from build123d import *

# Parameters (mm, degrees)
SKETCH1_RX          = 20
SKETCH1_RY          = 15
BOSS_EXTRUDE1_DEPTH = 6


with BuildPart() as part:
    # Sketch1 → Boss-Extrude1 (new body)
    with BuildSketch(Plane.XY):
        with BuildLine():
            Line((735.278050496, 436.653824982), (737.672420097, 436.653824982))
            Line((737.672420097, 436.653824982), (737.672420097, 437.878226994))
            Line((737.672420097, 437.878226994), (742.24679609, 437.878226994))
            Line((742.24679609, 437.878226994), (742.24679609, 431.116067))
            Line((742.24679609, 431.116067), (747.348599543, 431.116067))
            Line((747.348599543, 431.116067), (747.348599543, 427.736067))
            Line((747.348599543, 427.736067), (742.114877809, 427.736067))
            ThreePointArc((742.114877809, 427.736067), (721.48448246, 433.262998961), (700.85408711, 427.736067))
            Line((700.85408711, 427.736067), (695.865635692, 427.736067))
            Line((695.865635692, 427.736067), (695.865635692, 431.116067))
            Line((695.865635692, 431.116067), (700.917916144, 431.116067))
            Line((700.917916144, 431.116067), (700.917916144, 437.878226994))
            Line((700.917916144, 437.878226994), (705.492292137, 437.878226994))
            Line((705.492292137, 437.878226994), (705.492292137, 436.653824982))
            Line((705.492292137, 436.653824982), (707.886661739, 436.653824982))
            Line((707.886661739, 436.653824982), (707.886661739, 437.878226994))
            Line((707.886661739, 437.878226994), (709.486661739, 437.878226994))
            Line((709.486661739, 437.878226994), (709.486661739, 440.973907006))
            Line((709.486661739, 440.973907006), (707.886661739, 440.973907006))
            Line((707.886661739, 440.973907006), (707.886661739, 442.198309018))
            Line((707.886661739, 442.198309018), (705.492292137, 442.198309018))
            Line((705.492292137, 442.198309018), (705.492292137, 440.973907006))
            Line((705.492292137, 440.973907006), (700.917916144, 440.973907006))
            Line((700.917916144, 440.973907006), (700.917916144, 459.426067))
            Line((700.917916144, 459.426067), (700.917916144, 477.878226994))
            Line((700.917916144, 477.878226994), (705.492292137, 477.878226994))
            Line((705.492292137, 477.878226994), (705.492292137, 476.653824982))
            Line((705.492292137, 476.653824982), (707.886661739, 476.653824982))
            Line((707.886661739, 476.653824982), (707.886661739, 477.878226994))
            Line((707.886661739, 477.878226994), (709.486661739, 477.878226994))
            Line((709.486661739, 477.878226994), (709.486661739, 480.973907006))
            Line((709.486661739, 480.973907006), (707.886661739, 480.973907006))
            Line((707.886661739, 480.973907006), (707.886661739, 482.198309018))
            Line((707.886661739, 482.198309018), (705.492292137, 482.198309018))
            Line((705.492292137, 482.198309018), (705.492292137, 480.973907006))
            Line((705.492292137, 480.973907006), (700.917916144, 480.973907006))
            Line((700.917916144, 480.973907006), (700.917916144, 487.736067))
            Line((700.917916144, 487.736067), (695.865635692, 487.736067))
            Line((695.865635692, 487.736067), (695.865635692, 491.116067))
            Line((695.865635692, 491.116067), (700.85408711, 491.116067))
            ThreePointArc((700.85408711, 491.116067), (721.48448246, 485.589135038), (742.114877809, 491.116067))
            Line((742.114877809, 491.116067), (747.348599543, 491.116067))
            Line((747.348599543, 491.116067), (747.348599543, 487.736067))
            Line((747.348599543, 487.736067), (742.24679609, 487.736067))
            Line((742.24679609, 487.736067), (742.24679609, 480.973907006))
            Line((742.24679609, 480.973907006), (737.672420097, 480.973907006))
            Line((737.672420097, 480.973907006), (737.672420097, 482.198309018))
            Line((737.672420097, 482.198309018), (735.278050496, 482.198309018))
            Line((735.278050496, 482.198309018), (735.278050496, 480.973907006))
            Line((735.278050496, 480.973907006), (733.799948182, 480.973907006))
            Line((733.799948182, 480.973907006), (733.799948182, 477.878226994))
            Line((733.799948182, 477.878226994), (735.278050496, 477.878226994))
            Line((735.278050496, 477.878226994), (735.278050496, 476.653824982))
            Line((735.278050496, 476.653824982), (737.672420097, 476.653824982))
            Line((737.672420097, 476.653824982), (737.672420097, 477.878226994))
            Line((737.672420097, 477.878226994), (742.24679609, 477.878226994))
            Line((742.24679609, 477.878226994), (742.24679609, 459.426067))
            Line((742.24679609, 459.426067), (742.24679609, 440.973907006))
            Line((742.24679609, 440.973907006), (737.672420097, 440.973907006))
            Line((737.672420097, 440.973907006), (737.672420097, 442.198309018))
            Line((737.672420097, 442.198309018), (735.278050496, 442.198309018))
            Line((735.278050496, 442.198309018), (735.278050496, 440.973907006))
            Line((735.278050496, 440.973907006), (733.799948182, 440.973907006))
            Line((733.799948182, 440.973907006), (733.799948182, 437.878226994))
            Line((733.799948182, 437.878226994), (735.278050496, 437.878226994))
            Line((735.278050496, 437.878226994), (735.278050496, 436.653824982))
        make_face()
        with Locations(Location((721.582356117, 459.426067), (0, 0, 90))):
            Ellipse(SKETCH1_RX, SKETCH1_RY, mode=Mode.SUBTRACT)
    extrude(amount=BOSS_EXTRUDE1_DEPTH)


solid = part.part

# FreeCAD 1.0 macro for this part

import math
import FreeCAD as App
import Part
import Sketcher

V = App.Vector
Q = App.Units.Quantity

doc = App.newDocument("Part")
body = doc.addObject("PartDesign::Body", "Body")

# Sketch on XY plane
sketch1 = body.newObject("Sketcher::SketchObject", "Sketch")
sketch1.AttachmentSupport = (doc.getObject("XY_Plane"), [""])
sketch1.MapMode = "FlatFace"
sketch1.addGeometry([
    Part.LineSegment(V(737.67242, 436.653825, 0), V(735.27805, 436.653825, 0)),  # 0
    Part.LineSegment(V(735.27805, 436.653825, 0), V(735.27805, 437.878227, 0)),  # 1
    Part.LineSegment(V(735.27805, 437.878227, 0), V(733.799948, 437.878227, 0)),  # 2
    Part.LineSegment(V(733.799948, 437.878227, 0), V(733.799948, 440.973907, 0)),  # 3
    Part.LineSegment(V(733.799948, 440.973907, 0), V(735.27805, 440.973907, 0)),  # 4
    Part.LineSegment(V(735.27805, 440.973907, 0), V(735.27805, 442.198309, 0)),  # 5
    Part.LineSegment(V(735.27805, 442.198309, 0), V(737.67242, 442.198309, 0)),  # 6
    Part.LineSegment(V(737.67242, 442.198309, 0), V(737.67242, 440.973907, 0)),  # 7
    Part.LineSegment(V(737.67242, 440.973907, 0), V(742.246796, 440.973907, 0)),  # 8
    Part.LineSegment(V(742.246796, 440.973907, 0), V(742.246796, 477.878227, 0)),  # 9
    Part.LineSegment(V(742.246796, 477.878227, 0), V(737.67242, 477.878227, 0)),  # 10
    Part.LineSegment(V(737.67242, 477.878227, 0), V(737.67242, 476.653825, 0)),  # 11
    Part.LineSegment(V(737.67242, 476.653825, 0), V(735.27805, 476.653825, 0)),  # 12
    Part.LineSegment(V(735.27805, 476.653825, 0), V(735.27805, 477.878227, 0)),  # 13
    Part.LineSegment(V(735.27805, 477.878227, 0), V(733.799948, 477.878227, 0)),  # 14
    Part.LineSegment(V(733.799948, 477.878227, 0), V(733.799948, 480.973907, 0)),  # 15
    Part.LineSegment(V(733.799948, 480.973907, 0), V(735.27805, 480.973907, 0)),  # 16
    Part.LineSegment(V(735.27805, 480.973907, 0), V(735.27805, 482.198309, 0)),  # 17
    Part.LineSegment(V(735.27805, 482.198309, 0), V(737.67242, 482.198309, 0)),  # 18
    Part.LineSegment(V(737.67242, 482.198309, 0), V(737.67242, 480.973907, 0)),  # 19
    Part.LineSegment(V(737.67242, 480.973907, 0), V(742.246796, 480.973907, 0)),  # 20
    Part.LineSegment(V(742.246796, 480.973907, 0), V(742.246796, 487.736067, 0)),  # 21
    Part.LineSegment(V(742.246796, 487.736067, 0), V(747.3486, 487.736067, 0)),  # 22
    Part.LineSegment(V(747.3486, 487.736067, 0), V(747.3486, 491.116067, 0)),  # 23
    Part.LineSegment(V(747.3486, 491.116067, 0), V(742.114878, 491.116067, 0)),  # 24
    Part.ArcOfCircle(Part.Circle(V(721.484482, 526.85617, 0), V(0, 0, 1), 41.267035), math.radians(-119.994995), math.radians(-60.005005)),  # 25
    Part.LineSegment(V(700.854087, 491.116067, 0), V(695.865636, 491.116067, 0)),  # 26
    Part.LineSegment(V(695.865636, 491.116067, 0), V(695.865636, 487.736067, 0)),  # 27
    Part.LineSegment(V(695.865636, 487.736067, 0), V(700.917916, 487.736067, 0)),  # 28
    Part.LineSegment(V(700.917916, 487.736067, 0), V(700.917916, 480.973907, 0)),  # 29
    Part.LineSegment(V(700.917916, 480.973907, 0), V(705.492292, 480.973907, 0)),  # 30
    Part.LineSegment(V(705.492292, 480.973907, 0), V(705.492292, 482.198309, 0)),  # 31
    Part.LineSegment(V(705.492292, 482.198309, 0), V(707.886662, 482.198309, 0)),  # 32
    Part.LineSegment(V(707.886662, 482.198309, 0), V(707.886662, 480.973907, 0)),  # 33
    Part.LineSegment(V(707.886662, 480.973907, 0), V(709.486662, 480.973907, 0)),  # 34
    Part.LineSegment(V(709.486662, 480.973907, 0), V(709.486662, 477.878227, 0)),  # 35
    Part.LineSegment(V(709.486662, 477.878227, 0), V(707.886662, 477.878227, 0)),  # 36
    Part.LineSegment(V(707.886662, 477.878227, 0), V(707.886662, 476.653825, 0)),  # 37
    Part.LineSegment(V(707.886662, 476.653825, 0), V(705.492292, 476.653825, 0)),  # 38
    Part.LineSegment(V(705.492292, 476.653825, 0), V(705.492292, 477.878227, 0)),  # 39
    Part.LineSegment(V(705.492292, 477.878227, 0), V(700.917916, 477.878227, 0)),  # 40
    Part.LineSegment(V(700.917916, 477.878227, 0), V(700.917916, 440.973907, 0)),  # 41
    Part.LineSegment(V(700.917916, 440.973907, 0), V(705.492292, 440.973907, 0)),  # 42
    Part.LineSegment(V(705.492292, 440.973907, 0), V(705.492292, 442.198309, 0)),  # 43
    Part.LineSegment(V(705.492292, 442.198309, 0), V(707.886662, 442.198309, 0)),  # 44
    Part.LineSegment(V(707.886662, 442.198309, 0), V(707.886662, 440.973907, 0)),  # 45
    Part.LineSegment(V(707.886662, 440.973907, 0), V(709.486662, 440.973907, 0)),  # 46
    Part.LineSegment(V(709.486662, 440.973907, 0), V(709.486662, 437.878227, 0)),  # 47
    Part.LineSegment(V(709.486662, 437.878227, 0), V(707.886662, 437.878227, 0)),  # 48
    Part.LineSegment(V(707.886662, 437.878227, 0), V(707.886662, 436.653825, 0)),  # 49
    Part.LineSegment(V(707.886662, 436.653825, 0), V(705.492292, 436.653825, 0)),  # 50
    Part.LineSegment(V(705.492292, 436.653825, 0), V(705.492292, 437.878227, 0)),  # 51
    Part.LineSegment(V(705.492292, 437.878227, 0), V(700.917916, 437.878227, 0)),  # 52
    Part.LineSegment(V(700.917916, 437.878227, 0), V(700.917916, 431.116067, 0)),  # 53
    Part.LineSegment(V(700.917916, 431.116067, 0), V(695.865636, 431.116067, 0)),  # 54
    Part.LineSegment(V(695.865636, 431.116067, 0), V(695.865636, 427.736067, 0)),  # 55
    Part.LineSegment(V(695.865636, 427.736067, 0), V(700.854087, 427.736067, 0)),  # 56
    Part.ArcOfCircle(Part.Circle(V(721.484482, 391.995964, 0), V(0, 0, 1), 41.267035), math.radians(60.005005), math.radians(119.994995)),  # 57
    Part.LineSegment(V(742.114878, 427.736067, 0), V(747.3486, 427.736067, 0)),  # 58
    Part.LineSegment(V(747.3486, 427.736067, 0), V(747.3486, 431.116067, 0)),  # 59
    Part.LineSegment(V(747.3486, 431.116067, 0), V(742.246796, 431.116067, 0)),  # 60
    Part.LineSegment(V(742.246796, 431.116067, 0), V(742.246796, 437.878227, 0)),  # 61
    Part.LineSegment(V(742.246796, 437.878227, 0), V(737.67242, 437.878227, 0)),  # 62
    Part.LineSegment(V(737.67242, 437.878227, 0), V(737.67242, 436.653825, 0)),  # 63
    Part.Ellipse(V(721.582356, 479.426067, 0), V(706.582356, 459.426067, 0), V(721.582356, 459.426067, 0)),  # 64
], False)
sketch1.addConstraint([
    Sketcher.Constraint("Block", 64),
    Sketcher.Constraint("Coincident", 0, 2, 1, 1),
    Sketcher.Constraint("Coincident", 1, 2, 2, 1),
    Sketcher.Constraint("Coincident", 2, 2, 3, 1),
    Sketcher.Constraint("Coincident", 3, 2, 4, 1),
    Sketcher.Constraint("Coincident", 4, 2, 5, 1),
    Sketcher.Constraint("Coincident", 5, 2, 6, 1),
    Sketcher.Constraint("Coincident", 6, 2, 7, 1),
    Sketcher.Constraint("Coincident", 7, 2, 8, 1),
    Sketcher.Constraint("Coincident", 8, 2, 9, 1),
    Sketcher.Constraint("Coincident", 9, 2, 10, 1),
    Sketcher.Constraint("Coincident", 10, 2, 11, 1),
    Sketcher.Constraint("Coincident", 11, 2, 12, 1),
    Sketcher.Constraint("Coincident", 12, 2, 13, 1),
    Sketcher.Constraint("Coincident", 13, 2, 14, 1),
    Sketcher.Constraint("Coincident", 14, 2, 15, 1),
    Sketcher.Constraint("Coincident", 15, 2, 16, 1),
    Sketcher.Constraint("Coincident", 16, 2, 17, 1),
    Sketcher.Constraint("Coincident", 17, 2, 18, 1),
    Sketcher.Constraint("Coincident", 18, 2, 19, 1),
    Sketcher.Constraint("Coincident", 19, 2, 20, 1),
    Sketcher.Constraint("Coincident", 20, 2, 21, 1),
    Sketcher.Constraint("Coincident", 21, 2, 22, 1),
    Sketcher.Constraint("Coincident", 22, 2, 23, 1),
    Sketcher.Constraint("Coincident", 23, 2, 24, 1),
    Sketcher.Constraint("Coincident", 24, 2, 25, 2),
    Sketcher.Constraint("Coincident", 25, 1, 26, 1),
    Sketcher.Constraint("Coincident", 26, 2, 27, 1),
    Sketcher.Constraint("Coincident", 27, 2, 28, 1),
    Sketcher.Constraint("Coincident", 28, 2, 29, 1),
    Sketcher.Constraint("Coincident", 29, 2, 30, 1),
    Sketcher.Constraint("Coincident", 30, 2, 31, 1),
    Sketcher.Constraint("Coincident", 31, 2, 32, 1),
    Sketcher.Constraint("Coincident", 32, 2, 33, 1),
    Sketcher.Constraint("Coincident", 33, 2, 34, 1),
    Sketcher.Constraint("Coincident", 34, 2, 35, 1),
    Sketcher.Constraint("Coincident", 35, 2, 36, 1),
    Sketcher.Constraint("Coincident", 36, 2, 37, 1),
    Sketcher.Constraint("Coincident", 37, 2, 38, 1),
    Sketcher.Constraint("Coincident", 38, 2, 39, 1),
    Sketcher.Constraint("Coincident", 39, 2, 40, 1),
    Sketcher.Constraint("Coincident", 40, 2, 41, 1),
    Sketcher.Constraint("Coincident", 41, 2, 42, 1),
    Sketcher.Constraint("Coincident", 42, 2, 43, 1),
    Sketcher.Constraint("Coincident", 43, 2, 44, 1),
    Sketcher.Constraint("Coincident", 44, 2, 45, 1),
    Sketcher.Constraint("Coincident", 45, 2, 46, 1),
    Sketcher.Constraint("Coincident", 46, 2, 47, 1),
    Sketcher.Constraint("Coincident", 47, 2, 48, 1),
    Sketcher.Constraint("Coincident", 48, 2, 49, 1),
    Sketcher.Constraint("Coincident", 49, 2, 50, 1),
    Sketcher.Constraint("Coincident", 50, 2, 51, 1),
    Sketcher.Constraint("Coincident", 51, 2, 52, 1),
    Sketcher.Constraint("Coincident", 52, 2, 53, 1),
    Sketcher.Constraint("Coincident", 53, 2, 54, 1),
    Sketcher.Constraint("Coincident", 54, 2, 55, 1),
    Sketcher.Constraint("Coincident", 55, 2, 56, 1),
    Sketcher.Constraint("Coincident", 56, 2, 57, 2),
    Sketcher.Constraint("Coincident", 57, 1, 58, 1),
    Sketcher.Constraint("Coincident", 58, 2, 59, 1),
    Sketcher.Constraint("Coincident", 59, 2, 60, 1),
    Sketcher.Constraint("Coincident", 60, 2, 61, 1),
    Sketcher.Constraint("Coincident", 61, 2, 62, 1),
    Sketcher.Constraint("Coincident", 62, 2, 63, 1),
    Sketcher.Constraint("Coincident", 63, 2, 0, 1),
    Sketcher.Constraint("Horizontal", 0),
    Sketcher.Constraint("Vertical", 1),
    Sketcher.Constraint("Horizontal", 2),
    Sketcher.Constraint("Vertical", 3),
    Sketcher.Constraint("Horizontal", 4),
    Sketcher.Constraint("Vertical", 5),
    Sketcher.Constraint("Horizontal", 6),
    Sketcher.Constraint("Vertical", 7),
    Sketcher.Constraint("Horizontal", 8),
    Sketcher.Constraint("Vertical", 9),
    Sketcher.Constraint("Horizontal", 10),
    Sketcher.Constraint("Vertical", 11),
    Sketcher.Constraint("Horizontal", 12),
    Sketcher.Constraint("Vertical", 13),
    Sketcher.Constraint("Horizontal", 14),
    Sketcher.Constraint("Vertical", 15),
    Sketcher.Constraint("Horizontal", 16),
    Sketcher.Constraint("Vertical", 17),
    Sketcher.Constraint("Horizontal", 18),
    Sketcher.Constraint("Vertical", 19),
    Sketcher.Constraint("Horizontal", 20),
    Sketcher.Constraint("Vertical", 21),
    Sketcher.Constraint("Horizontal", 22),
    Sketcher.Constraint("Vertical", 23),
    Sketcher.Constraint("Horizontal", 24),
    Sketcher.Constraint("Horizontal", 26),
    Sketcher.Constraint("Vertical", 27),
    Sketcher.Constraint("Horizontal", 28),
    Sketcher.Constraint("Vertical", 29),
    Sketcher.Constraint("Horizontal", 30),
    Sketcher.Constraint("Vertical", 31),
    Sketcher.Constraint("Horizontal", 32),
    Sketcher.Constraint("Vertical", 33),
    Sketcher.Constraint("Horizontal", 34),
    Sketcher.Constraint("Vertical", 35),
    Sketcher.Constraint("Horizontal", 36),
    Sketcher.Constraint("Vertical", 37),
    Sketcher.Constraint("Horizontal", 38),
    Sketcher.Constraint("Vertical", 39),
    Sketcher.Constraint("Horizontal", 40),
    Sketcher.Constraint("Vertical", 41),
    Sketcher.Constraint("Horizontal", 42),
    Sketcher.Constraint("Vertical", 43),
    Sketcher.Constraint("Horizontal", 44),
    Sketcher.Constraint("Vertical", 45),
    Sketcher.Constraint("Horizontal", 46),
    Sketcher.Constraint("Vertical", 47),
    Sketcher.Constraint("Horizontal", 48),
    Sketcher.Constraint("Vertical", 49),
    Sketcher.Constraint("Horizontal", 50),
    Sketcher.Constraint("Vertical", 51),
    Sketcher.Constraint("Horizontal", 52),
    Sketcher.Constraint("Vertical", 53),
    Sketcher.Constraint("Horizontal", 54),
    Sketcher.Constraint("Vertical", 55),
    Sketcher.Constraint("Horizontal", 56),
    Sketcher.Constraint("Horizontal", 58),
    Sketcher.Constraint("Vertical", 59),
    Sketcher.Constraint("Horizontal", 60),
    Sketcher.Constraint("Vertical", 61),
    Sketcher.Constraint("Horizontal", 62),
    Sketcher.Constraint("Vertical", 63),
    Sketcher.Constraint("Equal", 25, 57),
    Sketcher.Constraint("Horizontal", 4, 2, 7, 2),
    Sketcher.Constraint("Horizontal", 10, 2, 13, 2),
    Sketcher.Constraint("Horizontal", 16, 2, 19, 2),
    Sketcher.Constraint("Horizontal", 24, 2, 25, 1),
    Sketcher.Constraint("Horizontal", 22, 2, 27, 2),
    Sketcher.Constraint("Horizontal", 20, 2, 29, 2),
    Sketcher.Constraint("Horizontal", 18, 2, 31, 2),
    Sketcher.Constraint("Horizontal", 30, 2, 33, 2),
    Sketcher.Constraint("Horizontal", 14, 2, 35, 2),
    Sketcher.Constraint("Horizontal", 12, 2, 37, 2),
    Sketcher.Constraint("Horizontal", 36, 2, 39, 2),
    Sketcher.Constraint("Horizontal", 8, 2, 41, 2),
    Sketcher.Constraint("Horizontal", 6, 2, 43, 2),
    Sketcher.Constraint("Horizontal", 42, 2, 45, 2),
    Sketcher.Constraint("Horizontal", 2, 2, 47, 2),
    Sketcher.Constraint("Horizontal", 0, 2, 49, 2),
    Sketcher.Constraint("Horizontal", 48, 2, 51, 2),
    Sketcher.Constraint("Horizontal", 56, 2, 57, 1),
    Sketcher.Constraint("Horizontal", 54, 2, 59, 2),
    Sketcher.Constraint("Horizontal", 52, 2, 61, 2),
    Sketcher.Constraint("Vertical", 25, 3, 57, 3),
    Sketcher.Constraint("Vertical", 1, 2, 4, 2),
    Sketcher.Constraint("Vertical", 7, 2, 10, 2),
    Sketcher.Constraint("Vertical", 5, 2, 12, 2),
    Sketcher.Constraint("Vertical", 3, 2, 14, 2),
    Sketcher.Constraint("Vertical", 13, 2, 16, 2),
    Sketcher.Constraint("Vertical", 11, 2, 18, 2),
    Sketcher.Constraint("Vertical", 9, 2, 20, 2),
    Sketcher.Constraint("Vertical", 33, 2, 36, 2),
    Sketcher.Constraint("Vertical", 31, 2, 38, 2),
    Sketcher.Constraint("Vertical", 29, 2, 40, 2),
    Sketcher.Constraint("Vertical", 39, 2, 42, 2),
    Sketcher.Constraint("Vertical", 37, 2, 44, 2),
    Sketcher.Constraint("Vertical", 35, 2, 46, 2),
    Sketcher.Constraint("Vertical", 45, 2, 48, 2),
    Sketcher.Constraint("Vertical", 43, 2, 50, 2),
    Sketcher.Constraint("Vertical", 41, 2, 52, 2),
    Sketcher.Constraint("Vertical", 27, 2, 54, 2),
    Sketcher.Constraint("Vertical", 25, 1, 56, 2),
    Sketcher.Constraint("Vertical", 23, 2, 58, 2),
    Sketcher.Constraint("Vertical", 21, 2, 60, 2),
    Sketcher.Constraint("Vertical", 19, 2, 62, 2),
    Sketcher.Constraint("Equal", 20, 30),
    Sketcher.Constraint("Equal", 18, 32),
    Sketcher.Constraint("Equal", 1, 5),
    Sketcher.Constraint("Equal", 7, 11),
    Sketcher.Constraint("Equal", 3, 15),
    Sketcher.Constraint("Equal", 13, 17),
    Sketcher.Constraint("Equal", 29, 53),
    Sketcher.Constraint("Equal", 27, 55),
    Sketcher.Constraint("DistanceX", 34, 1, 34, 2, Q("1.6 mm")),
    Sketcher.Constraint("DistanceY", 23, 1, 23, 2, Q("3.38 mm")),
    Sketcher.Constraint("Radius", 25, Q("41.267035 mm")),
    Sketcher.Constraint("DistanceX", 0, 2, 0, 1, Q("2.39437 mm")),
    Sketcher.Constraint("DistanceX", 24, 2, 24, 1, Q("5.233722 mm")),
    Sketcher.Constraint("DistanceX", 26, 2, 26, 1, Q("4.988451 mm")),
    Sketcher.Constraint("DistanceX", 28, 1, 28, 2, Q("5.05228 mm")),
    Sketcher.Constraint("DistanceY", 3, 1, 3, 2, Q("3.09568 mm")),
    Sketcher.Constraint("DistanceY", 9, 1, 9, 2, Q("36.90432 mm")),
    Sketcher.Constraint("DistanceY", 21, 1, 21, 2, Q("6.76216 mm")),
    Sketcher.Constraint("DistanceX", -1, 1, 22, 2, Q("747.3486 mm")),
    Sketcher.Constraint("DistanceX", 2, 2, 2, 1, Q("1.478102 mm")),
    Sketcher.Constraint("DistanceX", 8, 1, 8, 2, Q("4.574376 mm")),
    Sketcher.Constraint("DistanceX", 22, 1, 22, 2, Q("5.101803 mm")),
    Sketcher.Constraint("DistanceY", 1, 1, 1, 2, Q("1.224402 mm")),
    Sketcher.Constraint("DistanceY", -1, 1, 25, 3, Q("526.85617 mm")),
    Sketcher.Constraint("DistanceY", -1, 1, 5, 2, Q("442.198309 mm")),
])
pad1 = body.newObject("PartDesign::Pad", "Pad")
pad1.Profile = sketch1
pad1.Length = 6

doc.recompute()
